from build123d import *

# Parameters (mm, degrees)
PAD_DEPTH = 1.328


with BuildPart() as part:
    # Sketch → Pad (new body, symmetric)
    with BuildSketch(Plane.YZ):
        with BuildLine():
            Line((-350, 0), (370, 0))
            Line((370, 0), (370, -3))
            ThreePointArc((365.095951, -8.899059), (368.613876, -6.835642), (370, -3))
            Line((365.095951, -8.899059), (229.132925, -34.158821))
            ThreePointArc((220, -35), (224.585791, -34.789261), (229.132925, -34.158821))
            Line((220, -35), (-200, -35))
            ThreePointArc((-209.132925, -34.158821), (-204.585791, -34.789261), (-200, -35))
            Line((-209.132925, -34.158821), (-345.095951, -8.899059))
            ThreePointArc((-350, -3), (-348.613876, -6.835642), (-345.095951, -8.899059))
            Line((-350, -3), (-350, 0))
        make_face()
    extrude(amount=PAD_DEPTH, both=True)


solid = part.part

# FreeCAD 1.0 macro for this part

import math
import FreeCAD as App
import Part
import Sketcher

doc = App.newDocument("Part")
body = doc.addObject("PartDesign::Body", "Body")

# Sketch on YZ plane
sketch1 = doc.addObject("Sketcher::SketchObject", "Sketch")
body.addObject(sketch1)
sketch1.AttachmentSupport = (doc.YZ_Plane, [""])
sketch1.MapMode = "FlatFace"
sketch1.addGeometry([
    Part.LineSegment(App.Vector(370, 0, 0), App.Vector(-350, 0, 0)),  # 0
    Part.LineSegment(App.Vector(-350, 0, 0), App.Vector(-350, -3, 0)),  # 1
    Part.ArcOfCircle(Part.Circle(App.Vector(-344, -3, 0), App.Vector(0, 0, 1), 6), math.radians(-180), math.radians(-101)),  # 2
    Part.LineSegment(App.Vector(-345.1, -8.9, 0), App.Vector(-209.1, -34.2, 0)),  # 3
    Part.ArcOfCircle(Part.Circle(App.Vector(-200, 15, 0), App.Vector(0, 0, 1), 50), math.radians(-100.52), math.radians(-90)),  # 4
    Part.LineSegment(App.Vector(-200, -35, 0), App.Vector(220, -35, 0)),  # 5
    Part.ArcOfCircle(Part.Circle(App.Vector(220, 15, 0), App.Vector(0, 0, 1), 50), math.radians(-90), math.radians(-79.48)),  # 6
    Part.LineSegment(App.Vector(229.1, -34.2, 0), App.Vector(365.1, -8.9, 0)),  # 7
    Part.ArcOfCircle(Part.Circle(App.Vector(364, -3, 0), App.Vector(0, 0, 1), 6), math.radians(-79), math.radians(0)),  # 8
    Part.LineSegment(App.Vector(370, -3, 0), App.Vector(370, 0, 0)),  # 9
], False)
sketch1.addConstraint([
    Sketcher.Constraint("Coincident", 0, 2, 1, 1),
    Sketcher.Constraint("Tangent", 1, 2, 2, 1),
    Sketcher.Constraint("Tangent", 2, 2, 3, 1),
    Sketcher.Constraint("Tangent", 3, 2, 4, 1),
    Sketcher.Constraint("Tangent", 4, 2, 5, 1),
    Sketcher.Constraint("Tangent", 5, 2, 6, 1),
    Sketcher.Constraint("Tangent", 6, 2, 7, 1),
    Sketcher.Constraint("Tangent", 7, 2, 8, 1),
    Sketcher.Constraint("Tangent", 8, 2, 9, 1),
    Sketcher.Constraint("Coincident", 9, 2, 0, 1),
    Sketcher.Constraint("Horizontal", 0),
    Sketcher.Constraint("Vertical", 1),
    Sketcher.Constraint("Horizontal", 5),
    Sketcher.Constraint("Vertical", 9),
    Sketcher.Constraint("Equal", 4, 6),
    Sketcher.Constraint("Equal", 2, 8),
    Sketcher.Constraint("PointOnObject", 0, 2, -1),
    Sketcher.Constraint("Horizontal", 2, 3, 8, 3),
    Sketcher.Constraint("Equal", 3, 7),
    Sketcher.Constraint("Radius", 2, 6.000001),
    Sketcher.Constraint("DistanceX", 0, 2, 0, 1, 720.0),
    Sketcher.Constraint("DistanceX", 5, 1, 5, 2, 420.0),
    Sketcher.Constraint("DistanceY", 1, 2, 1, 1, 3.0),
    Sketcher.Constraint("DistanceX", 2, 3, -1, 1, 343.999999),
    Sketcher.Constraint("DistanceY", 4, 2, -1, 1, 35.0),
    Sketcher.Constraint("Radius", 4, 50.000025),
])
pad1 = doc.addObject("PartDesign::Pad", "Pad")
body.addObject(pad1)
pad1.Profile = sketch1
pad1.Length = 2.656
pad1.Midplane = True

doc.recompute()
